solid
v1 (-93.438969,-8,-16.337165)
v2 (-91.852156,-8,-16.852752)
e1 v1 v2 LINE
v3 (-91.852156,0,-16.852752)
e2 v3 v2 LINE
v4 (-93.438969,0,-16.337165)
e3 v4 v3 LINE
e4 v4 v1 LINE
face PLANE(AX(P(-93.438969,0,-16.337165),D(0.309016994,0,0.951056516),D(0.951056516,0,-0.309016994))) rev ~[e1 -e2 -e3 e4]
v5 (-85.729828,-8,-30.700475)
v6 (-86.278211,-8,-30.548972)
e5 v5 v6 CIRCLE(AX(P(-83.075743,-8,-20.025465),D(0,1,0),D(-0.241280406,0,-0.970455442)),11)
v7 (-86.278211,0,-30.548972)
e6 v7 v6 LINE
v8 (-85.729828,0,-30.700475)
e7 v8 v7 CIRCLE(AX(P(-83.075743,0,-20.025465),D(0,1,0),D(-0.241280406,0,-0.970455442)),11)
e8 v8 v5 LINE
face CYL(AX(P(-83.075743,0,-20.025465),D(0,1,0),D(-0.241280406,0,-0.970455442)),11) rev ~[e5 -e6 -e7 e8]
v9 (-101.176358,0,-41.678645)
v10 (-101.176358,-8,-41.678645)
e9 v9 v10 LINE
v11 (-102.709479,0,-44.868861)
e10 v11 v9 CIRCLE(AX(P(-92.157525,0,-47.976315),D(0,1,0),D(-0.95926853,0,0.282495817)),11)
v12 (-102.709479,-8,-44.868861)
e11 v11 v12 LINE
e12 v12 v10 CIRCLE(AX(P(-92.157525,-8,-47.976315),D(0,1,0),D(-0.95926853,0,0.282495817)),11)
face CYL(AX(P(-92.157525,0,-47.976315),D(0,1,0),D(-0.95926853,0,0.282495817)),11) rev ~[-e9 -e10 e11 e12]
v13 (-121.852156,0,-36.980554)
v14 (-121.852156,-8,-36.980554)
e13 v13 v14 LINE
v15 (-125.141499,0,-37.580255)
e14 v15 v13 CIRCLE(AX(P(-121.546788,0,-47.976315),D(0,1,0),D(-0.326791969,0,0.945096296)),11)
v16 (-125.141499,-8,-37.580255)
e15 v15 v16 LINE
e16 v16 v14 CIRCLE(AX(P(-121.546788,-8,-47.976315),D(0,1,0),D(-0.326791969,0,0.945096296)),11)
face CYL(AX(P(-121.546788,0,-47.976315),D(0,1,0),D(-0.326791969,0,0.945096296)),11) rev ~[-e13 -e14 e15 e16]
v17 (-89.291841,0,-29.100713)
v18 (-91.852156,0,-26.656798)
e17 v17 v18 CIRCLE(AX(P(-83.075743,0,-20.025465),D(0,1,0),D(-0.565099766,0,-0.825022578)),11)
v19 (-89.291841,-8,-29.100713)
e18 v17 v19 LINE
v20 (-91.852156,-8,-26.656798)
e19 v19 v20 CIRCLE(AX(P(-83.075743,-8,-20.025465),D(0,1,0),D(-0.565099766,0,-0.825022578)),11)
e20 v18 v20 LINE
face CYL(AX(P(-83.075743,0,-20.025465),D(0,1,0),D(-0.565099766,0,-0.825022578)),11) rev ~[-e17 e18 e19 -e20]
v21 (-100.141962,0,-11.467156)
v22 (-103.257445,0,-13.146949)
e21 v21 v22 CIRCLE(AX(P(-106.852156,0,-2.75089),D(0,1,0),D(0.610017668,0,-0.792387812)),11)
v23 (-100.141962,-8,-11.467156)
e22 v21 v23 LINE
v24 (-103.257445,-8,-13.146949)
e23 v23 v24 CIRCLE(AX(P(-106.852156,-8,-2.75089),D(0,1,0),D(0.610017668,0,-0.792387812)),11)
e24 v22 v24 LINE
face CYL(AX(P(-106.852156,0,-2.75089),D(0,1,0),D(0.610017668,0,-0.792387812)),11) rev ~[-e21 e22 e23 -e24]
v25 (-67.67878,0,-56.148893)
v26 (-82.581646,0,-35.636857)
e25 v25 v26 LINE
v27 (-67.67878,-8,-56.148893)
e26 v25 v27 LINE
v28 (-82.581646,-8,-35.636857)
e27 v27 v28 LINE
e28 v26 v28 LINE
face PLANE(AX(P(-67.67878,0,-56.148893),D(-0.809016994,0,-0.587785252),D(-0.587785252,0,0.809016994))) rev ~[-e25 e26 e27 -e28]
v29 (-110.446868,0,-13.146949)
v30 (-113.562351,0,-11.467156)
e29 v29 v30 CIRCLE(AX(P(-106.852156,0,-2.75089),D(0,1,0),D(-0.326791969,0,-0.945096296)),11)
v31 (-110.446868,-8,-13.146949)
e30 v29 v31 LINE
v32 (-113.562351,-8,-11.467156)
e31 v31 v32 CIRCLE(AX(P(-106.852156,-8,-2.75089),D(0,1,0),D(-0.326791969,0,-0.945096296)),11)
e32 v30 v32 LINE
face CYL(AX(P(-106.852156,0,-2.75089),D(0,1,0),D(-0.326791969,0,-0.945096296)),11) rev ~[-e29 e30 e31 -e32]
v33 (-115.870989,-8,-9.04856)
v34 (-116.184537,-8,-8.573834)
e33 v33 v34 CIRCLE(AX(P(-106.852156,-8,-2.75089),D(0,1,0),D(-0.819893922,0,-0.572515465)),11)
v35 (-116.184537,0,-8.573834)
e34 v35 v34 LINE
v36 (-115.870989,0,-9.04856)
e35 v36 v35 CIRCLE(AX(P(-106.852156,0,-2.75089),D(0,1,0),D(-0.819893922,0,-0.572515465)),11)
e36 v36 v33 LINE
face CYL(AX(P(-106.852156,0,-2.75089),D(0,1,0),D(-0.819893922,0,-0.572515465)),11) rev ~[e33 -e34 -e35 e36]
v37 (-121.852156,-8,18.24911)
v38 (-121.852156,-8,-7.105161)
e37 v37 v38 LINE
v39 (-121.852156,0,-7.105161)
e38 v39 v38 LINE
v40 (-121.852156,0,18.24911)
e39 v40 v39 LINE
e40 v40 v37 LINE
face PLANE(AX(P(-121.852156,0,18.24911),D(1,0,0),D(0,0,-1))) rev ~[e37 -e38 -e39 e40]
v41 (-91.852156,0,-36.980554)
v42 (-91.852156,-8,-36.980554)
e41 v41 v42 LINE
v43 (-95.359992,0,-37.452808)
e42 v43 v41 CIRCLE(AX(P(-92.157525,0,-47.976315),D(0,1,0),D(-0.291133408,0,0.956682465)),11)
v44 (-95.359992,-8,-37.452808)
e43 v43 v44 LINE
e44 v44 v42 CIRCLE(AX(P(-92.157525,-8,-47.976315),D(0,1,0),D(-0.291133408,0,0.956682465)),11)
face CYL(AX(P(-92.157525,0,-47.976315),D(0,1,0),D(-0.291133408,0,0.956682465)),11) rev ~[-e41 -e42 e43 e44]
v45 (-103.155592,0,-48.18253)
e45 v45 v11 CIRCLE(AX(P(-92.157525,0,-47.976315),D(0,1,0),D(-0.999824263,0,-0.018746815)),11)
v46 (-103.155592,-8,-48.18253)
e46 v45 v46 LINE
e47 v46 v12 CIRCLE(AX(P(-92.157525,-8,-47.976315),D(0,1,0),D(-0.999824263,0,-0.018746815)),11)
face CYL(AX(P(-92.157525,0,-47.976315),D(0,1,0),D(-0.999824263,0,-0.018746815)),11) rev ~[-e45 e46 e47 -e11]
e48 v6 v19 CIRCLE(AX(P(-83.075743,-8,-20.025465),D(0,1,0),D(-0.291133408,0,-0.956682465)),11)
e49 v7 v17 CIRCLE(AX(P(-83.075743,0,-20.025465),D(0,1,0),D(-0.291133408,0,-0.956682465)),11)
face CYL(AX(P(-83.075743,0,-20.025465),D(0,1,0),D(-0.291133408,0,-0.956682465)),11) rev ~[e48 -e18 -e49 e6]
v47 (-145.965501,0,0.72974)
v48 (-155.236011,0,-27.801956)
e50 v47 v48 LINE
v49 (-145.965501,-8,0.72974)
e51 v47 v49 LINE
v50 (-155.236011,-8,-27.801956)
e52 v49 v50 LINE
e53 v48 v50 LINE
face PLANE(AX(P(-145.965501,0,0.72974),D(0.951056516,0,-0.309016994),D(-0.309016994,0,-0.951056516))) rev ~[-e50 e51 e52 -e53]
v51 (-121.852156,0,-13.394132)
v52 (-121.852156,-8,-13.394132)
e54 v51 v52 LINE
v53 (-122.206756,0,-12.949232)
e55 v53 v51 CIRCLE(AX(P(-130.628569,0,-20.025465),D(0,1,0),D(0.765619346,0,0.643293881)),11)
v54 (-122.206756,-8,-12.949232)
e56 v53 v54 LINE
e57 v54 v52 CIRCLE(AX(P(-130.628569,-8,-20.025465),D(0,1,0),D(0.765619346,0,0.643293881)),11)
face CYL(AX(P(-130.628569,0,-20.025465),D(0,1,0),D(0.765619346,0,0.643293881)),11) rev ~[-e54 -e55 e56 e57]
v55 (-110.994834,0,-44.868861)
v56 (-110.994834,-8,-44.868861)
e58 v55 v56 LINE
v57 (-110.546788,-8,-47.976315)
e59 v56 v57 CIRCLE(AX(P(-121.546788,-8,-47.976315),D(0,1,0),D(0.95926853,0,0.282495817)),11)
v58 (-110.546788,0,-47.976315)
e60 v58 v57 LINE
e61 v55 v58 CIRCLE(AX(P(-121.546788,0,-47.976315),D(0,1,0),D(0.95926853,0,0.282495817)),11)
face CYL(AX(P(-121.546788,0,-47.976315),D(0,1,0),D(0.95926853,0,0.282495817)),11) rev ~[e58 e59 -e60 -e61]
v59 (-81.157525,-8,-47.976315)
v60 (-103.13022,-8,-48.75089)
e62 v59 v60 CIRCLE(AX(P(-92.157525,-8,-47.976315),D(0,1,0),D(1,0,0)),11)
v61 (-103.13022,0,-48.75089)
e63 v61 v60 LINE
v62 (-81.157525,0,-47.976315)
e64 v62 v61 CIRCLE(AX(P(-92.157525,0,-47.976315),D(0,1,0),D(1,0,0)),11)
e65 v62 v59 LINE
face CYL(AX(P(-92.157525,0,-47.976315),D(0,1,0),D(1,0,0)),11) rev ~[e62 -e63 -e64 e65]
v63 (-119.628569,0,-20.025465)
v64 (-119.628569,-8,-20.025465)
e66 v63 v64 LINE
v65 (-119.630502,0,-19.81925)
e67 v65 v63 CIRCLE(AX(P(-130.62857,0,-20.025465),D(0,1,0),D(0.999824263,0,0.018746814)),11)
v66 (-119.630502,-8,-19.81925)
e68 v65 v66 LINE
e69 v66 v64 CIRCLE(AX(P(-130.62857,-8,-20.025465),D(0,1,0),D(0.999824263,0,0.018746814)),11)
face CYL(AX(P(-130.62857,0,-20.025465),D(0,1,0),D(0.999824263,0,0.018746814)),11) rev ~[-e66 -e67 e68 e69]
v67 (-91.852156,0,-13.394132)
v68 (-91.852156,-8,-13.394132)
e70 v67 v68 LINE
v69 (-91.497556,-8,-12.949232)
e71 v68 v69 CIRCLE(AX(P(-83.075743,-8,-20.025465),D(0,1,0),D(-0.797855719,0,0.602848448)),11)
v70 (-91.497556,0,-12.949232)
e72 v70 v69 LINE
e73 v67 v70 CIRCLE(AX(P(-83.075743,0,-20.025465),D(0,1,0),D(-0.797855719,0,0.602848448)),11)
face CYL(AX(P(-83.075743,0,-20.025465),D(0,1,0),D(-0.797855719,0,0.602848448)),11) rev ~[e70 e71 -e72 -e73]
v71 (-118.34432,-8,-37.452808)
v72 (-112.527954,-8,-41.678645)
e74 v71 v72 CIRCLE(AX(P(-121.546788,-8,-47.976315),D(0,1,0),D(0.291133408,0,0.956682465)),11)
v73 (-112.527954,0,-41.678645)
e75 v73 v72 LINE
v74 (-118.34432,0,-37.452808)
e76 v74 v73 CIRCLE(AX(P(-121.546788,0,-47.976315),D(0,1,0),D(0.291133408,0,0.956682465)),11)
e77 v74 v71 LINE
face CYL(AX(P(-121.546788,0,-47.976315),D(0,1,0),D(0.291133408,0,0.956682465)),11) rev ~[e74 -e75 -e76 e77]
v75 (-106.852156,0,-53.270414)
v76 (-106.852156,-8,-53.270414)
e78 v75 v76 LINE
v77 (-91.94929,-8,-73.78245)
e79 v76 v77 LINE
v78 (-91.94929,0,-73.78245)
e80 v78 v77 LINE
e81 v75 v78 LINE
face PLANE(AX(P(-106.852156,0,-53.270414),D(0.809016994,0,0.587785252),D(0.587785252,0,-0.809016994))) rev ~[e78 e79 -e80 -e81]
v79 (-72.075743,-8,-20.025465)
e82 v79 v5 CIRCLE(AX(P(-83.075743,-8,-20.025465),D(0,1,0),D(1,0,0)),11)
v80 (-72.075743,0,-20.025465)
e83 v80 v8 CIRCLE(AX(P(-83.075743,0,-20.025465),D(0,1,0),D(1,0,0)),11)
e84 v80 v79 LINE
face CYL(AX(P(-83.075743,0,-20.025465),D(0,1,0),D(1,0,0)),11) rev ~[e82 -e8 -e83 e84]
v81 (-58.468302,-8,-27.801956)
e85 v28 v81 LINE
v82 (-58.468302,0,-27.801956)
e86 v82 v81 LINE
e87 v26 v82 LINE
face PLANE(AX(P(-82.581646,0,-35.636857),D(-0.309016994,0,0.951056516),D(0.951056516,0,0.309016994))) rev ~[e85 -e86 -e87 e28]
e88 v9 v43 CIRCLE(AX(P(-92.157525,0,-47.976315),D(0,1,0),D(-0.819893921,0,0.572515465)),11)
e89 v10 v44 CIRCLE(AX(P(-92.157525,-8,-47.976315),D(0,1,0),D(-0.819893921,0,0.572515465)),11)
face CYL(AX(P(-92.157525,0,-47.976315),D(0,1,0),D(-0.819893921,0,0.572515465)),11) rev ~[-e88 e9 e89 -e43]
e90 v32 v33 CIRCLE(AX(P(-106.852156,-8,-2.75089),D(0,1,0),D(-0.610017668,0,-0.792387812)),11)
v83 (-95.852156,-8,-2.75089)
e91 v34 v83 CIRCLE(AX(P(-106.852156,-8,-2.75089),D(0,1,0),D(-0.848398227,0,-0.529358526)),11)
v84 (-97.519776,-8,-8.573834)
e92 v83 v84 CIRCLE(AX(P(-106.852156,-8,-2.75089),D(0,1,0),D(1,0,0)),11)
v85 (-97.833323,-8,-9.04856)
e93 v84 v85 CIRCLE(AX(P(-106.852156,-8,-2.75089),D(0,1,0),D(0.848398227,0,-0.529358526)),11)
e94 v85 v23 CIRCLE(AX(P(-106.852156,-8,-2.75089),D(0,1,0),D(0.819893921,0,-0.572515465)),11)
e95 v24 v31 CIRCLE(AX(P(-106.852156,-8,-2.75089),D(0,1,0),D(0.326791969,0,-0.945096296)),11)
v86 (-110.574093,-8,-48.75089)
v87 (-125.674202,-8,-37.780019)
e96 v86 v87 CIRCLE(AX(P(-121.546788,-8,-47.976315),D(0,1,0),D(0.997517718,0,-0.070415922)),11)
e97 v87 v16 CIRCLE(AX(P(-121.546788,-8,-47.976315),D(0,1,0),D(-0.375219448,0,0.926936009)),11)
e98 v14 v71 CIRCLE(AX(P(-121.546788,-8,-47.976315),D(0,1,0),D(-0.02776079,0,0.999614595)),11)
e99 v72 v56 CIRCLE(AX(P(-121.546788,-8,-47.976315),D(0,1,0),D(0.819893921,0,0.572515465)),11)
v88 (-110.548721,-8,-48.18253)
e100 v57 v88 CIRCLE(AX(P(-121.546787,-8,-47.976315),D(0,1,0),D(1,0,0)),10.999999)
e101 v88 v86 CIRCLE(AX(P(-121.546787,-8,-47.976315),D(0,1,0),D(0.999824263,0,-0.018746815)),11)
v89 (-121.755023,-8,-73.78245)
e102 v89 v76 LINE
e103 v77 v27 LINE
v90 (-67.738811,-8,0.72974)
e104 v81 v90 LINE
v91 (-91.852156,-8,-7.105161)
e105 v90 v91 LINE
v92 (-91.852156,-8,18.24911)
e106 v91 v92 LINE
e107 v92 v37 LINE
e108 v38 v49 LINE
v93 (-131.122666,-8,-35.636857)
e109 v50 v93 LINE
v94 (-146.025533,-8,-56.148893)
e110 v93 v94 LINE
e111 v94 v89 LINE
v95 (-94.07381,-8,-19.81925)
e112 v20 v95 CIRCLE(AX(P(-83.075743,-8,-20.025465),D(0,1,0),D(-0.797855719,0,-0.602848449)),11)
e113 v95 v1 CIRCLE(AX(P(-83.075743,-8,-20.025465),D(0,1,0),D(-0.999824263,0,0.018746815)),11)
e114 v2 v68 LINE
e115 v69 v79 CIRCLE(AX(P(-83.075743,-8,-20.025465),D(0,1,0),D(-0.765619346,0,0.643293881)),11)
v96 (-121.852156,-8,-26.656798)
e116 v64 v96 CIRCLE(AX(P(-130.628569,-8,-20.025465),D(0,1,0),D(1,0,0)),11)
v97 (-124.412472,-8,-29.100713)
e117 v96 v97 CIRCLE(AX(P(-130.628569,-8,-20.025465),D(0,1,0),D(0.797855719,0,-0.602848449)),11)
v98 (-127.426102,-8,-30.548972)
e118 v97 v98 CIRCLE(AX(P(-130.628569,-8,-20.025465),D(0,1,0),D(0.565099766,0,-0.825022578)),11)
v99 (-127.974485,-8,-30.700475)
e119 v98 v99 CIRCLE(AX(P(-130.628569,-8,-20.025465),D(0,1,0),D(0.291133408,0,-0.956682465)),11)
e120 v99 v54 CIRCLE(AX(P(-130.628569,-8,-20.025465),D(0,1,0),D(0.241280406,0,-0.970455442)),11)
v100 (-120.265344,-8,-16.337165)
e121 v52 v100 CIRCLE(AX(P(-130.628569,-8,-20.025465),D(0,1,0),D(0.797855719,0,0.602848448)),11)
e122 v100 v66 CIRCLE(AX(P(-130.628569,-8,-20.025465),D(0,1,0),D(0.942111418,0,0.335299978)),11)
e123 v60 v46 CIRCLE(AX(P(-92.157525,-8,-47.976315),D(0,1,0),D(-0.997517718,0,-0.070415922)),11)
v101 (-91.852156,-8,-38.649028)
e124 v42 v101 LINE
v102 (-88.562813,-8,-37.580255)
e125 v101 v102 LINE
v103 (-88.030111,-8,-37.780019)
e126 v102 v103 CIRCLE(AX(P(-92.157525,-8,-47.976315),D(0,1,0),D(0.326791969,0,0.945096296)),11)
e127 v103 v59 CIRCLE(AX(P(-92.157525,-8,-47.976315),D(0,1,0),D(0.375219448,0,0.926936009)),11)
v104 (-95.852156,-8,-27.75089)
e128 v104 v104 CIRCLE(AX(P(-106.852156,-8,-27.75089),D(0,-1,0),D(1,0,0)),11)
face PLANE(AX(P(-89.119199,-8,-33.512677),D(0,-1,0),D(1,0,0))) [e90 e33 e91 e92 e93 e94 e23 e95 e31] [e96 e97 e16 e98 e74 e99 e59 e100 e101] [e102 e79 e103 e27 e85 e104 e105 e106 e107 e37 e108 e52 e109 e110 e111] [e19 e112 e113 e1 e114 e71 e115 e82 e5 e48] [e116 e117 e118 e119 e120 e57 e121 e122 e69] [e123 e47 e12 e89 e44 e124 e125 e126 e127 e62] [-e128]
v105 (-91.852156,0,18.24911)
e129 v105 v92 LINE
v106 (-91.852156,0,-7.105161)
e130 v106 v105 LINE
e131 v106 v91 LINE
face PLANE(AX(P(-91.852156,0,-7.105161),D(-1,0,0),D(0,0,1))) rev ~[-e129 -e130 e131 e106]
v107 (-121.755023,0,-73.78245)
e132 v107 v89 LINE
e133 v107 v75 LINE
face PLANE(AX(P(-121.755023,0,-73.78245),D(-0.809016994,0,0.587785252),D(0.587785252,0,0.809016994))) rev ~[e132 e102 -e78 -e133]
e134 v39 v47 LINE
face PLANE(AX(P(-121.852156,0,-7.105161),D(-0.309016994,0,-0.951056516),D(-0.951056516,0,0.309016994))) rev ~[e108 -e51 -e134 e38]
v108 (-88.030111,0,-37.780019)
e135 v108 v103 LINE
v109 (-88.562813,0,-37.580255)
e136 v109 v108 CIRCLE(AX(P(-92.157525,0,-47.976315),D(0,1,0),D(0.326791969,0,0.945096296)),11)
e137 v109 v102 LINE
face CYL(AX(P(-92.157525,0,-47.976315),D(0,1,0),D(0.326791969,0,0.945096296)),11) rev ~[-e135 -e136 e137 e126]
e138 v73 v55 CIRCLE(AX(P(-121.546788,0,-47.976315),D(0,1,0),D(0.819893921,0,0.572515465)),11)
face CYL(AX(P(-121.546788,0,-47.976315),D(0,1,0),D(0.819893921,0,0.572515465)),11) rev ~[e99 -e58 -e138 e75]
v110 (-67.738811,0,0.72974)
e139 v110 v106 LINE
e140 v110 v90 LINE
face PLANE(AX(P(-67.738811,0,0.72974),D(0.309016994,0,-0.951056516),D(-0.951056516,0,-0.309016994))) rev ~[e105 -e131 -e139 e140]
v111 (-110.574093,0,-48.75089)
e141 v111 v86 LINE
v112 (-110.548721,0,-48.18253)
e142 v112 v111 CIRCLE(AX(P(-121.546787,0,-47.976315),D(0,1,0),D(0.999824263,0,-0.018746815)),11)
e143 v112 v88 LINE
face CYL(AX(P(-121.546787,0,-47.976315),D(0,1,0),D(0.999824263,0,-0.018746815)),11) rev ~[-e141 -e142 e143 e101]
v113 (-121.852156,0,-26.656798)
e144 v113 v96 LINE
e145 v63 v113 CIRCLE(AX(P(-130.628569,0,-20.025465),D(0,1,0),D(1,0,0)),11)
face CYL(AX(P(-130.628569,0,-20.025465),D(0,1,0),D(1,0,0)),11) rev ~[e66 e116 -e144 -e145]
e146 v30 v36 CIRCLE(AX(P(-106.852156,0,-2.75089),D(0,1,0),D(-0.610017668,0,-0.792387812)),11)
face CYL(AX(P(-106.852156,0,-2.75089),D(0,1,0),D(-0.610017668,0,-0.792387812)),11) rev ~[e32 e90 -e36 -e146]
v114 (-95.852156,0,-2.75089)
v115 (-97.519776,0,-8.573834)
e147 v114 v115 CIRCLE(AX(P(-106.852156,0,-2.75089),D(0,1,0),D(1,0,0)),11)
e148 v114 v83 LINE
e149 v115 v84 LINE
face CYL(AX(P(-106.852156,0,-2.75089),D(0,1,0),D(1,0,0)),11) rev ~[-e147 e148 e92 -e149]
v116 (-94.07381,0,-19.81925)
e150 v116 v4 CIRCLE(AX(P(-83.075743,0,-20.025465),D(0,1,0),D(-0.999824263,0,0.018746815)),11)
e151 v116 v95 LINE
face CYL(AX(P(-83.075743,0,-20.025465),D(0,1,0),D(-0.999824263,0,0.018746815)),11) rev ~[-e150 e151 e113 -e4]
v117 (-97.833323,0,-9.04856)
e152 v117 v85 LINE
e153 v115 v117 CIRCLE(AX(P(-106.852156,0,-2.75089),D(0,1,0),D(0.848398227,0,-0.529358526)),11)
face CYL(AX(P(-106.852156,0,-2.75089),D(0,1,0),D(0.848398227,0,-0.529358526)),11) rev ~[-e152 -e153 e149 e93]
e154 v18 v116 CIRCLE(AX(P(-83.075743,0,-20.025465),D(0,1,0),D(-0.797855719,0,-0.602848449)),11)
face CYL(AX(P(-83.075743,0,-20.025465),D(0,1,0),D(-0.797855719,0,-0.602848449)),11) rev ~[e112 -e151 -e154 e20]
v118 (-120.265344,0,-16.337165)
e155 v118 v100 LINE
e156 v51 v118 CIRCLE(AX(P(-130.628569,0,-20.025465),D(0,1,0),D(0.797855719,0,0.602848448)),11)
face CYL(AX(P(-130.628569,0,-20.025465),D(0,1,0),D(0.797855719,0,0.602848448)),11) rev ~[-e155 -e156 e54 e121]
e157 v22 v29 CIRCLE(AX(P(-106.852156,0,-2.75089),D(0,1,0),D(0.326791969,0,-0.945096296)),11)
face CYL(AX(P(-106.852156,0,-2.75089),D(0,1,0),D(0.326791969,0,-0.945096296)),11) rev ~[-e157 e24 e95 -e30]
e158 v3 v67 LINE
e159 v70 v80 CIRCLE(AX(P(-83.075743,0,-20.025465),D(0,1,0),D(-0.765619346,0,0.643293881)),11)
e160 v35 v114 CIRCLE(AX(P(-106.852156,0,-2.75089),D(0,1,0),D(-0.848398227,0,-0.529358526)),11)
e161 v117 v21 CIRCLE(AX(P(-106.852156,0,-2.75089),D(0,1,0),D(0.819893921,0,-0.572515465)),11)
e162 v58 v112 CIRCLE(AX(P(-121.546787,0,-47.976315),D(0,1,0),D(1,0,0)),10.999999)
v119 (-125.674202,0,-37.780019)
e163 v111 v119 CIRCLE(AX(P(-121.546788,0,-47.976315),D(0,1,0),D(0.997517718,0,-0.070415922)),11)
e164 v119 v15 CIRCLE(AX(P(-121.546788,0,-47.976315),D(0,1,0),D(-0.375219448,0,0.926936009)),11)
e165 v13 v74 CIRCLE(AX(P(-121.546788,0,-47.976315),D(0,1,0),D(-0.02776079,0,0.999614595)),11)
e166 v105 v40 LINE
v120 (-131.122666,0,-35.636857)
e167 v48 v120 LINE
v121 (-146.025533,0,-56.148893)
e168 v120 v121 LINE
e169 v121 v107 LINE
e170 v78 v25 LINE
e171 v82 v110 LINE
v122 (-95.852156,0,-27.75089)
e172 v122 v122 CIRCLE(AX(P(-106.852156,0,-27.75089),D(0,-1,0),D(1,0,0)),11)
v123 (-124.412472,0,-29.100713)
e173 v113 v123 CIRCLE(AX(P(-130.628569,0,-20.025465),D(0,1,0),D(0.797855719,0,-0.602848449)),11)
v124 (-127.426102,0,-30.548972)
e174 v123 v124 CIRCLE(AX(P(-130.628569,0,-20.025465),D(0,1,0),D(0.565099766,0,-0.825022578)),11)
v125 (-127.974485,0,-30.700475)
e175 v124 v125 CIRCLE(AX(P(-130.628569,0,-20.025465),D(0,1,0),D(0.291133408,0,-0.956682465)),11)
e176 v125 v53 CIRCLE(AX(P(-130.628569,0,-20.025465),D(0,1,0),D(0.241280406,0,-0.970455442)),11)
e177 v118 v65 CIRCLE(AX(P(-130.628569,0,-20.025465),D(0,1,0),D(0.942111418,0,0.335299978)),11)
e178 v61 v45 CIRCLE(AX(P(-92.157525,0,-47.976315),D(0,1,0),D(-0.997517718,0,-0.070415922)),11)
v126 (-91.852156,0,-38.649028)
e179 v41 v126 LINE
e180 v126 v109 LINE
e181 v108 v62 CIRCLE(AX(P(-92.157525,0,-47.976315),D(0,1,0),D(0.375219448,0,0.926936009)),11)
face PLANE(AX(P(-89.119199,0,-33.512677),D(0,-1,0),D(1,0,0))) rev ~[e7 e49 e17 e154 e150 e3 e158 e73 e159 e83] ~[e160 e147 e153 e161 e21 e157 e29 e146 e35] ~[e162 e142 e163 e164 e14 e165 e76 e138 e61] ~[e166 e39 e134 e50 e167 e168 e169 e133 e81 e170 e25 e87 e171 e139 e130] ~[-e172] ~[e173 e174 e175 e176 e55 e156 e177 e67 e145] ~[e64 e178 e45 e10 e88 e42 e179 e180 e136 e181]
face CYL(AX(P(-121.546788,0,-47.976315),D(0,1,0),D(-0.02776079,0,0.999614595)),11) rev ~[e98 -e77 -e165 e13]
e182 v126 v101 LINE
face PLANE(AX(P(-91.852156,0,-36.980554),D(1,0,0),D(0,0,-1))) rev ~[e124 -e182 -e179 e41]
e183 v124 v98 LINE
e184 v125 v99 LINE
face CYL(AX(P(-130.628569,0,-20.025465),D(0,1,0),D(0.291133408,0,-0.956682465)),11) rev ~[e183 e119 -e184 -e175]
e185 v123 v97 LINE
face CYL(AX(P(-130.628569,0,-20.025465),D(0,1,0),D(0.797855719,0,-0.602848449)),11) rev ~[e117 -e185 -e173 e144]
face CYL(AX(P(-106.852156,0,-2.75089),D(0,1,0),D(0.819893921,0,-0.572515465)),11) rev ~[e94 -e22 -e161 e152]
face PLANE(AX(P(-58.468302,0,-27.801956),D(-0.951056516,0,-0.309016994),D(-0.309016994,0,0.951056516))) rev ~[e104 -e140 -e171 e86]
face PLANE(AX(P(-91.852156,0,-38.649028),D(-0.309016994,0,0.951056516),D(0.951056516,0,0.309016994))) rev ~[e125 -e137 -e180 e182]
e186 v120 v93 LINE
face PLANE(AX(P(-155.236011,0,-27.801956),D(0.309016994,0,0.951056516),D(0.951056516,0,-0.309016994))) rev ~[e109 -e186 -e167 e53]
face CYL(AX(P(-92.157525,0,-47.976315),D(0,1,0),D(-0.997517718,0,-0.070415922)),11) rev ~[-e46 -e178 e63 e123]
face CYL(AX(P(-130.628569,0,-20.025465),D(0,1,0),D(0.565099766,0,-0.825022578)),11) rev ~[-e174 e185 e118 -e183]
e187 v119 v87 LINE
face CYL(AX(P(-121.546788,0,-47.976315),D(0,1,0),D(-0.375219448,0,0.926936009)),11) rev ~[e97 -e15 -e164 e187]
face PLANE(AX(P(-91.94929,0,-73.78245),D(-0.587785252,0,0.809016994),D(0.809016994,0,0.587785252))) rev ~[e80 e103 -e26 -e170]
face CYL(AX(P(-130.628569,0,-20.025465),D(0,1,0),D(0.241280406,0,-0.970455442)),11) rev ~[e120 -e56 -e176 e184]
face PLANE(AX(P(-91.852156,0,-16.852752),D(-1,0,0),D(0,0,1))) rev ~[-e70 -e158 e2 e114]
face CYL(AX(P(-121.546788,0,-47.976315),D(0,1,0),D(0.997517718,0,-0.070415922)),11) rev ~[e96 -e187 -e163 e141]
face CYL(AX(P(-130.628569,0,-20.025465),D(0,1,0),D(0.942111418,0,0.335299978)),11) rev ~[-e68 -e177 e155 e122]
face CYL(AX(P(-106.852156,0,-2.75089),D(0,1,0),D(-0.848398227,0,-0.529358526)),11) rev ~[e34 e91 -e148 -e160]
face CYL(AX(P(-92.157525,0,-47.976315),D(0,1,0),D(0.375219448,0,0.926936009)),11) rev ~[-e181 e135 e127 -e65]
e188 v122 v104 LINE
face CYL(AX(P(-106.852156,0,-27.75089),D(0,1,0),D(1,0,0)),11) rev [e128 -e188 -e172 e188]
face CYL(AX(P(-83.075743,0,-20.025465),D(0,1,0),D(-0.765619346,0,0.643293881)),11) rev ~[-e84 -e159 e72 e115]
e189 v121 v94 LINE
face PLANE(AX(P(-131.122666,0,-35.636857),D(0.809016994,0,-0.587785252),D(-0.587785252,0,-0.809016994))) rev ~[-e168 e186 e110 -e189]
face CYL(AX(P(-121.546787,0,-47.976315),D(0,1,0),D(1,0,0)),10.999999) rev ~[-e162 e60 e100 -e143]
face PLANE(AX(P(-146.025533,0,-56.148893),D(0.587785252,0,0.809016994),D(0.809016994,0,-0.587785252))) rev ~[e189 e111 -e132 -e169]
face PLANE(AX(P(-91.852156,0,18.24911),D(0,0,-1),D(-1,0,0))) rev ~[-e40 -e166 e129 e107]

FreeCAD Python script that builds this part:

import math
import FreeCAD as App
import Part
import Sketcher
from FreeCAD import Vector
Q = App.Units.Quantity


def add_polygon(sketch, points):
    """Adds a closed chain of lines whose ends are joined by coincident constraints."""
    first, n = sketch.GeometryCount, len(points)
    for a, b in zip(points, points[1:] + points[:1]):
        sketch.addGeometry(Part.LineSegment(App.Vector(*a, 0), App.Vector(*b, 0)), False)
    for i in range(n):
        sketch.addConstraint(Sketcher.Constraint("Coincident", first + i, 2, first + (i + 1) % n, 1))

doc = App.newDocument("Part")
body = doc.addObject("PartDesign::Body", "Body")

sketch1 = body.newObject("Sketcher::SketchObject", "Sketch")
sketch1.AttachmentSupport = (doc.getObject("XZ_Plane"), [""])
sketch1.MapMode = "FlatFace"
add_polygon(sketch1, [(-67.67878, -56.148893), (-82.581646, -35.636857), (-58.468302, -27.801956), (-67.738811, 0.72974), (-91.852156, -7.105161), (-91.852156, 18.24911), (-121.852156, 18.24911), (-121.852156, -7.105161), (-145.965501, 0.72974), (-155.236011, -27.801956), (-131.122666, -35.636857), (-146.025533, -56.148893), (-121.755023, -73.78245), (-106.852156, -53.270414), (-91.94929, -73.78245)])
sketch1.addGeometry(Part.ArcOfCircle(Part.Circle(Vector(-121.546788, -47.976315, 0), Vector(0, 0, 1), 11), math.radians(16.40922), math.radians(34.925824)), False)
sketch1.addGeometry(Part.ArcOfCircle(Part.Circle(Vector(-121.546788, -47.976315, 0), Vector(0, 0, 1), 11), math.radians(0), math.radians(16.40922)), False)
sketch1.addGeometry(Part.ArcOfCircle(Part.Circle(Vector(-121.546787, -47.976315, 0), Vector(0, 0, 1), 10.999999), math.radians(-1.074176), math.radians(0)), False)
sketch1.addGeometry(Part.ArcOfCircle(Part.Circle(Vector(-121.546787, -47.976315, 0), Vector(0, 0, 1), 11), math.radians(-4.037877), math.radians(-1.074176)), False)
sketch1.addGeometry(Part.ArcOfCircle(Part.Circle(Vector(-121.546788, -47.976315, 0), Vector(0, 0, 1), 11), math.radians(112.037877), math.radians(355.962123)), False)
sketch1.addGeometry(Part.ArcOfCircle(Part.Circle(Vector(-121.546788, -47.976315, 0), Vector(0, 0, 1), 11), math.radians(109.074176), math.radians(112.037877)), False)
sketch1.addGeometry(Part.ArcOfCircle(Part.Circle(Vector(-121.546788, -47.976315, 0), Vector(0, 0, 1), 11), math.radians(91.59078), math.radians(109.074176)), False)
sketch1.addGeometry(Part.ArcOfCircle(Part.Circle(Vector(-121.546788, -47.976315, 0), Vector(0, 0, 1), 11), math.radians(73.074176), math.radians(91.59078)), False)
sketch1.addGeometry(Part.ArcOfCircle(Part.Circle(Vector(-121.546788, -47.976315, 0), Vector(0, 0, 1), 11), math.radians(34.925824), math.radians(73.074176)), False)
sketch1.addGeometry(Part.ArcOfCircle(Part.Circle(Vector(-130.628569, -20.025465, 0), Vector(0, 0, 1), 11), math.radians(-55.59078), math.radians(-37.074176)), False)
sketch1.addGeometry(Part.ArcOfCircle(Part.Circle(Vector(-130.628569, -20.025465, 0), Vector(0, 0, 1), 11), math.radians(-73.074176), math.radians(-55.59078)), False)
sketch1.addGeometry(Part.ArcOfCircle(Part.Circle(Vector(-130.628569, -20.025465, 0), Vector(0, 0, 1), 11), math.radians(-76.037877), math.radians(-73.074176)), False)
sketch1.addGeometry(Part.ArcOfCircle(Part.Circle(Vector(-130.628569, -20.025465, 0), Vector(0, 0, 1), 11), math.radians(40.037877), math.radians(283.962123)), False)
sketch1.addGeometry(Part.ArcOfCircle(Part.Circle(Vector(-130.628569, -20.025465, 0), Vector(0, 0, 1), 11), math.radians(37.074176), math.radians(40.037877)), False)
sketch1.addGeometry(Part.ArcOfCircle(Part.Circle(Vector(-130.628569, -20.025465, 0), Vector(0, 0, 1), 11), math.radians(19.59078), math.radians(37.074176)), False)
sketch1.addGeometry(Part.ArcOfCircle(Part.Circle(Vector(-130.628569, -20.025465, 0), Vector(0, 0, 1), 11), math.radians(1.074176), math.radians(19.59078)), False)
sketch1.addGeometry(Part.ArcOfCircle(Part.Circle(Vector(-130.62857, -20.025465, 0), Vector(0, 0, 1), 11), math.radians(0), math.radians(1.074176)), False)
sketch1.addGeometry(Part.ArcOfCircle(Part.Circle(Vector(-130.628569, -20.025465, 0), Vector(0, 0, 1), 11), math.radians(-37.074176), math.radians(0)), False)
sketch1.addGeometry(Part.Circle(Vector(-106.852156, -27.75089, 0), Vector(0, 0, 1), 11), False)
sketch1.addGeometry(Part.ArcOfCircle(Part.Circle(Vector(-92.157525, -47.976315, 0), Vector(0, 0, 1), 11), math.radians(88.40922), math.radians(106.925824)), False)
sketch1.addGeometry(Part.LineSegment(Vector(-91.852156, -36.980554, 0), Vector(-91.852156, -38.649028, 0)), False)
sketch1.addGeometry(Part.LineSegment(Vector(-91.852156, -38.649028, 0), Vector(-88.562813, -37.580255, 0)), False)
sketch1.addGeometry(Part.ArcOfCircle(Part.Circle(Vector(-92.157525, -47.976315, 0), Vector(0, 0, 1), 11), math.radians(67.962123), math.radians(70.925824)), False)
sketch1.addGeometry(Part.ArcOfCircle(Part.Circle(Vector(-92.157525, -47.976315, 0), Vector(0, 0, 1), 11), math.radians(0), math.radians(67.962123)), False)
sketch1.addGeometry(Part.ArcOfCircle(Part.Circle(Vector(-92.157525, -47.976315, 0), Vector(0, 0, 1), 11), math.radians(-175.962123), math.radians(0)), False)
sketch1.addGeometry(Part.ArcOfCircle(Part.Circle(Vector(-92.157525, -47.976315, 0), Vector(0, 0, 1), 11), math.radians(-178.925824), math.radians(-175.962123)), False)
sketch1.addGeometry(Part.ArcOfCircle(Part.Circle(Vector(-92.157525, -47.976315, 0), Vector(0, 0, 1), 11), math.radians(163.59078), math.radians(181.074176)), False)
sketch1.addGeometry(Part.ArcOfCircle(Part.Circle(Vector(-92.157525, -47.976315, 0), Vector(0, 0, 1), 11), math.radians(145.074176), math.radians(163.59078)), False)
sketch1.addGeometry(Part.ArcOfCircle(Part.Circle(Vector(-92.157525, -47.976315, 0), Vector(0, 0, 1), 11), math.radians(106.925824), math.radians(145.074176)), False)
sketch1.addGeometry(Part.ArcOfCircle(Part.Circle(Vector(-106.852156, -2.75089, 0), Vector(0, 0, 1), 11), math.radians(-127.59078), math.radians(-109.074176)), False)
sketch1.addGeometry(Part.ArcOfCircle(Part.Circle(Vector(-106.852156, -2.75089, 0), Vector(0, 0, 1), 11), math.radians(-145.074176), math.radians(-127.59078)), False)
sketch1.addGeometry(Part.ArcOfCircle(Part.Circle(Vector(-106.852156, -2.75089, 0), Vector(0, 0, 1), 11), math.radians(-148.037877), math.radians(-145.074176)), False)
sketch1.addGeometry(Part.ArcOfCircle(Part.Circle(Vector(-106.852156, -2.75089, 0), Vector(0, 0, 1), 11), math.radians(0), math.radians(211.962123)), False)
sketch1.addGeometry(Part.ArcOfCircle(Part.Circle(Vector(-106.852156, -2.75089, 0), Vector(0, 0, 1), 11), math.radians(-31.962123), math.radians(0)), False)
sketch1.addGeometry(Part.ArcOfCircle(Part.Circle(Vector(-106.852156, -2.75089, 0), Vector(0, 0, 1), 11), math.radians(-34.925824), math.radians(-31.962123)), False)
sketch1.addGeometry(Part.ArcOfCircle(Part.Circle(Vector(-106.852156, -2.75089, 0), Vector(0, 0, 1), 11), math.radians(-52.40922), math.radians(-34.925824)), False)
sketch1.addGeometry(Part.ArcOfCircle(Part.Circle(Vector(-106.852156, -2.75089, 0), Vector(0, 0, 1), 11), math.radians(-70.925824), math.radians(-52.40922)), False)
sketch1.addGeometry(Part.ArcOfCircle(Part.Circle(Vector(-106.852156, -2.75089, 0), Vector(0, 0, 1), 11), math.radians(-109.074176), math.radians(-70.925824)), False)
sketch1.addGeometry(Part.ArcOfCircle(Part.Circle(Vector(-83.075743, -20.025465, 0), Vector(0, 0, 1), 11), math.radians(160.40922), math.radians(178.925824)), False)
sketch1.addGeometry(Part.LineSegment(Vector(-93.438969, -16.337165, 0), Vector(-91.852156, -16.852752, 0)), False)
sketch1.addGeometry(Part.LineSegment(Vector(-91.852156, -16.852752, 0), Vector(-91.852156, -13.394132, 0)), False)
sketch1.addGeometry(Part.ArcOfCircle(Part.Circle(Vector(-83.075743, -20.025465, 0), Vector(0, 0, 1), 11), math.radians(139.962123), math.radians(142.925824)), False)
sketch1.addGeometry(Part.ArcOfCircle(Part.Circle(Vector(-83.075743, -20.025465, 0), Vector(0, 0, 1), 11), math.radians(0), math.radians(139.962123)), False)
sketch1.addGeometry(Part.ArcOfCircle(Part.Circle(Vector(-83.075743, -20.025465, 0), Vector(0, 0, 1), 11), math.radians(-103.962123), math.radians(0)), False)
sketch1.addGeometry(Part.ArcOfCircle(Part.Circle(Vector(-83.075743, -20.025465, 0), Vector(0, 0, 1), 11), math.radians(-106.925824), math.radians(-103.962123)), False)
sketch1.addGeometry(Part.ArcOfCircle(Part.Circle(Vector(-83.075743, -20.025465, 0), Vector(0, 0, 1), 11), math.radians(-124.40922), math.radians(-106.925824)), False)
sketch1.addGeometry(Part.ArcOfCircle(Part.Circle(Vector(-83.075743, -20.025465, 0), Vector(0, 0, 1), 11), math.radians(-142.925824), math.radians(-124.40922)), False)
sketch1.addGeometry(Part.ArcOfCircle(Part.Circle(Vector(-83.075743, -20.025465, 0), Vector(0, 0, 1), 11), math.radians(178.925824), math.radians(217.074176)), False)
sketch1.addConstraint([
    Sketcher.Constraint("Coincident", 15, 1, 16, 2),
    Sketcher.Constraint("Coincident", 16, 1, 17, 2),
    Sketcher.Constraint("Coincident", 17, 1, 18, 2),
    Sketcher.Constraint("Coincident", 18, 1, 19, 2),
    Sketcher.Constraint("Coincident", 19, 1, 20, 2),
    Sketcher.Constraint("Coincident", 20, 1, 21, 2),
    Sketcher.Constraint("Coincident", 21, 1, 22, 2),
    Sketcher.Constraint("Coincident", 22, 1, 23, 2),
    Sketcher.Constraint("Coincident", 23, 1, 15, 2),
    Sketcher.Constraint("Coincident", 24, 1, 25, 2),
    Sketcher.Constraint("Coincident", 25, 1, 26, 2),
    Sketcher.Constraint("Coincident", 26, 1, 27, 2),
    Sketcher.Constraint("Coincident", 27, 1, 28, 2),
    Sketcher.Constraint("Coincident", 28, 1, 29, 2),
    Sketcher.Constraint("Coincident", 29, 1, 30, 2),
    Sketcher.Constraint("Coincident", 30, 1, 31, 2),
    Sketcher.Constraint("Coincident", 31, 1, 32, 2),
    Sketcher.Constraint("Coincident", 32, 1, 24, 2),
    Sketcher.Constraint("Coincident", 34, 1, 35, 1),
    Sketcher.Constraint("Coincident", 35, 2, 36, 1),
    Sketcher.Constraint("Coincident", 36, 2, 37, 2),
    Sketcher.Constraint("Coincident", 37, 1, 38, 2),
    Sketcher.Constraint("Coincident", 38, 1, 39, 2),
    Sketcher.Constraint("Coincident", 39, 1, 40, 2),
    Sketcher.Constraint("Coincident", 40, 1, 41, 2),
    Sketcher.Constraint("Coincident", 41, 1, 42, 2),
    Sketcher.Constraint("Coincident", 42, 1, 43, 2),
    Sketcher.Constraint("Coincident", 43, 1, 34, 2),
    Sketcher.Constraint("Coincident", 44, 1, 45, 2),
    Sketcher.Constraint("Coincident", 45, 1, 46, 2),
    Sketcher.Constraint("Coincident", 46, 1, 47, 2),
    Sketcher.Constraint("Coincident", 47, 1, 48, 2),
    Sketcher.Constraint("Coincident", 48, 1, 49, 2),
    Sketcher.Constraint("Coincident", 49, 1, 50, 2),
    Sketcher.Constraint("Coincident", 50, 1, 51, 2),
    Sketcher.Constraint("Coincident", 51, 1, 52, 2),
    Sketcher.Constraint("Coincident", 52, 1, 44, 2),
    Sketcher.Constraint("Coincident", 53, 1, 54, 1),
    Sketcher.Constraint("Coincident", 54, 2, 55, 1),
    Sketcher.Constraint("Coincident", 55, 2, 56, 2),
    Sketcher.Constraint("Coincident", 56, 1, 57, 2),
    Sketcher.Constraint("Coincident", 57, 1, 58, 2),
    Sketcher.Constraint("Coincident", 58, 1, 59, 2),
    Sketcher.Constraint("Coincident", 59, 1, 60, 2),
    Sketcher.Constraint("Coincident", 60, 1, 61, 2),
    Sketcher.Constraint("Coincident", 61, 1, 62, 2),
    Sketcher.Constraint("Coincident", 62, 1, 53, 2),
    Sketcher.Constraint("Vertical", 4),
    Sketcher.Constraint("Horizontal", 5),
    Sketcher.Constraint("Vertical", 6),
    Sketcher.Constraint("Vertical", 35),
    Sketcher.Constraint("Vertical", 55),
    Sketcher.Constraint("Coincident", 16, 3, 15, 3),
    Sketcher.Constraint("Coincident", 17, 3, 15, 3),
    Sketcher.Constraint("Coincident", 18, 3, 15, 3),
    Sketcher.Constraint("Coincident", 19, 3, 15, 3),
    Sketcher.Constraint("Coincident", 20, 3, 15, 3),
    Sketcher.Constraint("Coincident", 21, 3, 15, 3),
    Sketcher.Constraint("Coincident", 22, 3, 15, 3),
    Sketcher.Constraint("Coincident", 25, 3, 24, 3),
    Sketcher.Constraint("Coincident", 26, 3, 24, 3),
    Sketcher.Constraint("Coincident", 27, 3, 24, 3),
    Sketcher.Constraint("Coincident", 28, 3, 24, 3),
    Sketcher.Constraint("Coincident", 29, 3, 24, 3),
    Sketcher.Constraint("Coincident", 30, 3, 24, 3),
    Sketcher.Constraint("Coincident", 31, 3, 24, 3),
    Sketcher.Constraint("Coincident", 37, 3, 34, 3),
    Sketcher.Constraint("Coincident", 38, 3, 34, 3),
    Sketcher.Constraint("Coincident", 39, 3, 34, 3),
    Sketcher.Constraint("Coincident", 40, 3, 34, 3),
    Sketcher.Constraint("Coincident", 41, 3, 34, 3),
    Sketcher.Constraint("Coincident", 42, 3, 34, 3),
    Sketcher.Constraint("Coincident", 43, 3, 34, 3),
    Sketcher.Constraint("Coincident", 45, 3, 44, 3),
    Sketcher.Constraint("Coincident", 46, 3, 44, 3),
    Sketcher.Constraint("Coincident", 47, 3, 44, 3),
    Sketcher.Constraint("Coincident", 48, 3, 44, 3),
    Sketcher.Constraint("Coincident", 49, 3, 44, 3),
    Sketcher.Constraint("Coincident", 50, 3, 44, 3),
    Sketcher.Constraint("Coincident", 51, 3, 44, 3),
    Sketcher.Constraint("Coincident", 56, 3, 53, 3),
    Sketcher.Constraint("Coincident", 57, 3, 53, 3),
    Sketcher.Constraint("Coincident", 58, 3, 53, 3),
    Sketcher.Constraint("Coincident", 59, 3, 53, 3),
    Sketcher.Constraint("Coincident", 60, 3, 53, 3),
    Sketcher.Constraint("Coincident", 61, 3, 53, 3),
    Sketcher.Constraint("Coincident", 62, 3, 53, 3),
    Sketcher.Constraint("Diameter", 33, Q("22 mm")),
    Sketcher.Constraint("Radius", 15, Q("11 mm")),
    Sketcher.Constraint("Radius", 23, Q("11 mm")),
    Sketcher.Constraint("Radius", 24, Q("11 mm")),
    Sketcher.Constraint("Radius", 32, Q("11 mm")),
    Sketcher.Constraint("Radius", 34, Q("11 mm")),
    Sketcher.Constraint("Radius", 44, Q("11 mm")),
    Sketcher.Constraint("Radius", 52, Q("11 mm")),
    Sketcher.Constraint("Radius", 53, Q("11 mm")),
    Sketcher.Constraint("DistanceX", 5, 2, 5, 1, Q("30 mm")),
    Sketcher.Constraint("Distance", 2, Q("30 mm")),
    Sketcher.Constraint("Distance", 8, Q("30 mm")),
    Sketcher.Constraint("Distance", 11, Q("30 mm")),
    Sketcher.Constraint("Distance", 14, Q("30 mm")),
    Sketcher.Constraint("DistanceY", 4, 1, 4, 2, Q("25.354271 mm")),
    Sketcher.Constraint("DistanceY", 6, 2, 6, 1, Q("25.354271 mm")),
    Sketcher.Constraint("DistanceY", 55, 1, 55, 2, Q("3.45862 mm")),
    Sketcher.Constraint("DistanceX", 1, 2, -1, 1, Q("58.468302 mm")),
    Sketcher.Constraint("DistanceX", 7, 2, -1, 1, Q("145.965501 mm")),
    Sketcher.Constraint("DistanceX", 19, 1, -1, 1, Q("125.674202 mm")),
    Sketcher.Constraint("DistanceX", 20, 1, -1, 1, Q("125.141499 mm")),
    Sketcher.Constraint("DistanceX", 25, 1, -1, 1, Q("127.426102 mm")),
    Sketcher.Constraint("Distance", 0, Q("25.354271 mm")),
    Sketcher.Constraint("Distance", 1, Q("25.354271 mm")),
    Sketcher.Constraint("Distance", 3, Q("25.354271 mm")),
    Sketcher.Constraint("Distance", 7, Q("25.354271 mm")),
    Sketcher.Constraint("Distance", 9, Q("25.354271 mm")),
    Sketcher.Constraint("Distance", 10, Q("25.354271 mm")),
    Sketcher.Constraint("Distance", 12, Q("25.354271 mm")),
    Sketcher.Constraint("Distance", 13, Q("25.354271 mm")),
    Sketcher.Constraint("Distance", 36, Q("3.45862 mm")),
    Sketcher.Constraint("DistanceY", 35, 2, 35, 1, Q("1.668474 mm")),
    Sketcher.Constraint("DistanceX", 24, 3, -1, 1, Q("130.628569 mm")),
    Sketcher.Constraint("DistanceY", 33, 3, -1, 1, Q("27.75089 mm")),
    Sketcher.Constraint("DistanceY", 44, 3, -1, 1, Q("2.75089 mm")),
    Sketcher.Constraint("DistanceX", 2, 2, -1, 1, Q("67.738811 mm")),
    Sketcher.Constraint("DistanceY", -1, 1, 2, 2, Q("0.72974 mm")),
    Sketcher.Constraint("DistanceY", 3, 2, -1, 1, Q("7.105161 mm")),
    Sketcher.Constraint("DistanceX", 8, 2, -1, 1, Q("155.236011 mm")),
    Sketcher.Constraint("DistanceY", 11, 2, -1, 1, Q("73.78245 mm")),
    Sketcher.Constraint("DistanceX", 13, 2, -1, 1, Q("91.94929 mm")),
    Sketcher.Constraint("DistanceY", 13, 2, -1, 1, Q("73.78245 mm")),
    Sketcher.Constraint("DistanceX", 14, 2, -1, 1, Q("67.67878 mm")),
    Sketcher.Constraint("DistanceY", 15, 1, -1, 1, Q("44.868861 mm")),
    Sketcher.Constraint("DistanceX", 17, 1, -1, 1, Q("110.548721 mm")),
    Sketcher.Constraint("DistanceY", 17, 1, -1, 1, Q("48.18253 mm")),
    Sketcher.Constraint("DistanceY", 18, 1, -1, 1, Q("48.75089 mm")),
    Sketcher.Constraint("DistanceY", 19, 1, -1, 1, Q("37.780019 mm")),
    Sketcher.Constraint("DistanceX", 22, 1, -1, 1, Q("118.34432 mm")),
    Sketcher.Constraint("DistanceX", 24, 1, -1, 1, Q("124.412472 mm")),
    Sketcher.Constraint("DistanceY", 30, 1, -1, 1, Q("19.81925 mm")),
    Sketcher.Constraint("DistanceX", 37, 1, -1, 1, Q("88.030111 mm")),
    Sketcher.Constraint("DistanceY", 37, 1, -1, 1, Q("37.780019 mm")),
    Sketcher.Constraint("DistanceX", 39, 1, -1, 1, Q("103.13022 mm")),
    Sketcher.Constraint("DistanceY", 39, 1, -1, 1, Q("48.75089 mm")),
    Sketcher.Constraint("DistanceX", 40, 1, -1, 1, Q("103.155592 mm")),
    Sketcher.Constraint("DistanceX", 41, 1, -1, 1, Q("102.709479 mm")),
    Sketcher.Constraint("DistanceX", 42, 1, -1, 1, Q("101.176358 mm")),
    Sketcher.Constraint("DistanceX", 44, 1, -1, 1, Q("113.562351 mm")),
    Sketcher.Constraint("DistanceX", 45, 1, -1, 1, Q("115.870989 mm")),
    Sketcher.Constraint("DistanceY", 45, 1, -1, 1, Q("9.04856 mm")),
    Sketcher.Constraint("DistanceY", 47, 1, -1, 1, Q("2.75089 mm")),
    Sketcher.Constraint("DistanceY", 49, 1, -1, 1, Q("9.04856 mm")),
    Sketcher.Constraint("DistanceX", 50, 1, -1, 1, Q("100.141962 mm")),
    Sketcher.Constraint("DistanceY", 51, 1, -1, 1, Q("13.146949 mm")),
    Sketcher.Constraint("DistanceY", 52, 1, -1, 1, Q("13.146949 mm")),
    Sketcher.Constraint("DistanceX", 53, 1, -1, 1, Q("93.438969 mm")),
    Sketcher.Constraint("DistanceY", 54, 2, -1, 1, Q("16.852752 mm")),
    Sketcher.Constraint("DistanceX", 59, 1, -1, 1, Q("86.278211 mm")),
    Sketcher.Constraint("DistanceX", 60, 1, -1, 1, Q("89.291841 mm")),
    Sketcher.Constraint("DistanceX", 62, 1, -1, 1, Q("94.07381 mm")),
    Sketcher.Constraint("DistanceY", 62, 1, -1, 1, Q("19.81925 mm")),
    Sketcher.Constraint("Distance", 54, Q("1.668474 mm")),
    Sketcher.Constraint("DistanceY", 24, 3, -1, 1, Q("20.025465 mm")),
    Sketcher.Constraint("DistanceX", 33, 3, -1, 1, Q("106.852156 mm")),
    Sketcher.Constraint("DistanceX", 9, 2, -1, 1, Q("131.122666 mm")),
    Sketcher.Constraint("DistanceX", 10, 2, -1, 1, Q("146.025533 mm")),
    Sketcher.Constraint("DistanceY", 16, 1, -1, 1, Q("47.976315 mm")),
    Sketcher.Constraint("DistanceX", 21, 1, -1, 1, Q("121.852156 mm")),
    Sketcher.Constraint("DistanceX", 23, 1, -1, 1, Q("112.527954 mm")),
    Sketcher.Constraint("DistanceX", 26, 1, -1, 1, Q("127.974485 mm")),
    Sketcher.Constraint("DistanceX", 27, 1, -1, 1, Q("122.206756 mm")),
    Sketcher.Constraint("DistanceX", 28, 1, -1, 1, Q("121.852156 mm")),
    Sketcher.Constraint("DistanceX", 29, 1, -1, 1, Q("120.265344 mm")),
    Sketcher.Constraint("DistanceY", 31, 1, -1, 1, Q("20.025465 mm")),
    Sketcher.Constraint("DistanceX", 32, 1, -1, 1, Q("121.852156 mm")),
    Sketcher.Constraint("DistanceX", 34, 1, -1, 1, Q("91.852156 mm")),
    Sketcher.Constraint("DistanceY", 38, 1, -1, 1, Q("47.976315 mm")),
    Sketcher.Constraint("DistanceX", 43, 1, -1, 1, Q("95.359992 mm")),
    Sketcher.Constraint("DistanceX", 46, 1, -1, 1, Q("116.184537 mm")),
    Sketcher.Constraint("DistanceX", 48, 1, -1, 1, Q("97.519776 mm")),
    Sketcher.Constraint("DistanceX", 56, 1, -1, 1, Q("91.497556 mm")),
    Sketcher.Constraint("DistanceY", 57, 1, -1, 1, Q("20.025465 mm")),
    Sketcher.Constraint("DistanceX", 58, 1, -1, 1, Q("85.729828 mm")),
    Sketcher.Constraint("DistanceX", 61, 1, -1, 1, Q("91.852156 mm")),
])
pad1 = body.newObject("PartDesign::Pad", "Pad")
pad1.Profile = sketch1
pad1.Length = 8

doc.recompute()
